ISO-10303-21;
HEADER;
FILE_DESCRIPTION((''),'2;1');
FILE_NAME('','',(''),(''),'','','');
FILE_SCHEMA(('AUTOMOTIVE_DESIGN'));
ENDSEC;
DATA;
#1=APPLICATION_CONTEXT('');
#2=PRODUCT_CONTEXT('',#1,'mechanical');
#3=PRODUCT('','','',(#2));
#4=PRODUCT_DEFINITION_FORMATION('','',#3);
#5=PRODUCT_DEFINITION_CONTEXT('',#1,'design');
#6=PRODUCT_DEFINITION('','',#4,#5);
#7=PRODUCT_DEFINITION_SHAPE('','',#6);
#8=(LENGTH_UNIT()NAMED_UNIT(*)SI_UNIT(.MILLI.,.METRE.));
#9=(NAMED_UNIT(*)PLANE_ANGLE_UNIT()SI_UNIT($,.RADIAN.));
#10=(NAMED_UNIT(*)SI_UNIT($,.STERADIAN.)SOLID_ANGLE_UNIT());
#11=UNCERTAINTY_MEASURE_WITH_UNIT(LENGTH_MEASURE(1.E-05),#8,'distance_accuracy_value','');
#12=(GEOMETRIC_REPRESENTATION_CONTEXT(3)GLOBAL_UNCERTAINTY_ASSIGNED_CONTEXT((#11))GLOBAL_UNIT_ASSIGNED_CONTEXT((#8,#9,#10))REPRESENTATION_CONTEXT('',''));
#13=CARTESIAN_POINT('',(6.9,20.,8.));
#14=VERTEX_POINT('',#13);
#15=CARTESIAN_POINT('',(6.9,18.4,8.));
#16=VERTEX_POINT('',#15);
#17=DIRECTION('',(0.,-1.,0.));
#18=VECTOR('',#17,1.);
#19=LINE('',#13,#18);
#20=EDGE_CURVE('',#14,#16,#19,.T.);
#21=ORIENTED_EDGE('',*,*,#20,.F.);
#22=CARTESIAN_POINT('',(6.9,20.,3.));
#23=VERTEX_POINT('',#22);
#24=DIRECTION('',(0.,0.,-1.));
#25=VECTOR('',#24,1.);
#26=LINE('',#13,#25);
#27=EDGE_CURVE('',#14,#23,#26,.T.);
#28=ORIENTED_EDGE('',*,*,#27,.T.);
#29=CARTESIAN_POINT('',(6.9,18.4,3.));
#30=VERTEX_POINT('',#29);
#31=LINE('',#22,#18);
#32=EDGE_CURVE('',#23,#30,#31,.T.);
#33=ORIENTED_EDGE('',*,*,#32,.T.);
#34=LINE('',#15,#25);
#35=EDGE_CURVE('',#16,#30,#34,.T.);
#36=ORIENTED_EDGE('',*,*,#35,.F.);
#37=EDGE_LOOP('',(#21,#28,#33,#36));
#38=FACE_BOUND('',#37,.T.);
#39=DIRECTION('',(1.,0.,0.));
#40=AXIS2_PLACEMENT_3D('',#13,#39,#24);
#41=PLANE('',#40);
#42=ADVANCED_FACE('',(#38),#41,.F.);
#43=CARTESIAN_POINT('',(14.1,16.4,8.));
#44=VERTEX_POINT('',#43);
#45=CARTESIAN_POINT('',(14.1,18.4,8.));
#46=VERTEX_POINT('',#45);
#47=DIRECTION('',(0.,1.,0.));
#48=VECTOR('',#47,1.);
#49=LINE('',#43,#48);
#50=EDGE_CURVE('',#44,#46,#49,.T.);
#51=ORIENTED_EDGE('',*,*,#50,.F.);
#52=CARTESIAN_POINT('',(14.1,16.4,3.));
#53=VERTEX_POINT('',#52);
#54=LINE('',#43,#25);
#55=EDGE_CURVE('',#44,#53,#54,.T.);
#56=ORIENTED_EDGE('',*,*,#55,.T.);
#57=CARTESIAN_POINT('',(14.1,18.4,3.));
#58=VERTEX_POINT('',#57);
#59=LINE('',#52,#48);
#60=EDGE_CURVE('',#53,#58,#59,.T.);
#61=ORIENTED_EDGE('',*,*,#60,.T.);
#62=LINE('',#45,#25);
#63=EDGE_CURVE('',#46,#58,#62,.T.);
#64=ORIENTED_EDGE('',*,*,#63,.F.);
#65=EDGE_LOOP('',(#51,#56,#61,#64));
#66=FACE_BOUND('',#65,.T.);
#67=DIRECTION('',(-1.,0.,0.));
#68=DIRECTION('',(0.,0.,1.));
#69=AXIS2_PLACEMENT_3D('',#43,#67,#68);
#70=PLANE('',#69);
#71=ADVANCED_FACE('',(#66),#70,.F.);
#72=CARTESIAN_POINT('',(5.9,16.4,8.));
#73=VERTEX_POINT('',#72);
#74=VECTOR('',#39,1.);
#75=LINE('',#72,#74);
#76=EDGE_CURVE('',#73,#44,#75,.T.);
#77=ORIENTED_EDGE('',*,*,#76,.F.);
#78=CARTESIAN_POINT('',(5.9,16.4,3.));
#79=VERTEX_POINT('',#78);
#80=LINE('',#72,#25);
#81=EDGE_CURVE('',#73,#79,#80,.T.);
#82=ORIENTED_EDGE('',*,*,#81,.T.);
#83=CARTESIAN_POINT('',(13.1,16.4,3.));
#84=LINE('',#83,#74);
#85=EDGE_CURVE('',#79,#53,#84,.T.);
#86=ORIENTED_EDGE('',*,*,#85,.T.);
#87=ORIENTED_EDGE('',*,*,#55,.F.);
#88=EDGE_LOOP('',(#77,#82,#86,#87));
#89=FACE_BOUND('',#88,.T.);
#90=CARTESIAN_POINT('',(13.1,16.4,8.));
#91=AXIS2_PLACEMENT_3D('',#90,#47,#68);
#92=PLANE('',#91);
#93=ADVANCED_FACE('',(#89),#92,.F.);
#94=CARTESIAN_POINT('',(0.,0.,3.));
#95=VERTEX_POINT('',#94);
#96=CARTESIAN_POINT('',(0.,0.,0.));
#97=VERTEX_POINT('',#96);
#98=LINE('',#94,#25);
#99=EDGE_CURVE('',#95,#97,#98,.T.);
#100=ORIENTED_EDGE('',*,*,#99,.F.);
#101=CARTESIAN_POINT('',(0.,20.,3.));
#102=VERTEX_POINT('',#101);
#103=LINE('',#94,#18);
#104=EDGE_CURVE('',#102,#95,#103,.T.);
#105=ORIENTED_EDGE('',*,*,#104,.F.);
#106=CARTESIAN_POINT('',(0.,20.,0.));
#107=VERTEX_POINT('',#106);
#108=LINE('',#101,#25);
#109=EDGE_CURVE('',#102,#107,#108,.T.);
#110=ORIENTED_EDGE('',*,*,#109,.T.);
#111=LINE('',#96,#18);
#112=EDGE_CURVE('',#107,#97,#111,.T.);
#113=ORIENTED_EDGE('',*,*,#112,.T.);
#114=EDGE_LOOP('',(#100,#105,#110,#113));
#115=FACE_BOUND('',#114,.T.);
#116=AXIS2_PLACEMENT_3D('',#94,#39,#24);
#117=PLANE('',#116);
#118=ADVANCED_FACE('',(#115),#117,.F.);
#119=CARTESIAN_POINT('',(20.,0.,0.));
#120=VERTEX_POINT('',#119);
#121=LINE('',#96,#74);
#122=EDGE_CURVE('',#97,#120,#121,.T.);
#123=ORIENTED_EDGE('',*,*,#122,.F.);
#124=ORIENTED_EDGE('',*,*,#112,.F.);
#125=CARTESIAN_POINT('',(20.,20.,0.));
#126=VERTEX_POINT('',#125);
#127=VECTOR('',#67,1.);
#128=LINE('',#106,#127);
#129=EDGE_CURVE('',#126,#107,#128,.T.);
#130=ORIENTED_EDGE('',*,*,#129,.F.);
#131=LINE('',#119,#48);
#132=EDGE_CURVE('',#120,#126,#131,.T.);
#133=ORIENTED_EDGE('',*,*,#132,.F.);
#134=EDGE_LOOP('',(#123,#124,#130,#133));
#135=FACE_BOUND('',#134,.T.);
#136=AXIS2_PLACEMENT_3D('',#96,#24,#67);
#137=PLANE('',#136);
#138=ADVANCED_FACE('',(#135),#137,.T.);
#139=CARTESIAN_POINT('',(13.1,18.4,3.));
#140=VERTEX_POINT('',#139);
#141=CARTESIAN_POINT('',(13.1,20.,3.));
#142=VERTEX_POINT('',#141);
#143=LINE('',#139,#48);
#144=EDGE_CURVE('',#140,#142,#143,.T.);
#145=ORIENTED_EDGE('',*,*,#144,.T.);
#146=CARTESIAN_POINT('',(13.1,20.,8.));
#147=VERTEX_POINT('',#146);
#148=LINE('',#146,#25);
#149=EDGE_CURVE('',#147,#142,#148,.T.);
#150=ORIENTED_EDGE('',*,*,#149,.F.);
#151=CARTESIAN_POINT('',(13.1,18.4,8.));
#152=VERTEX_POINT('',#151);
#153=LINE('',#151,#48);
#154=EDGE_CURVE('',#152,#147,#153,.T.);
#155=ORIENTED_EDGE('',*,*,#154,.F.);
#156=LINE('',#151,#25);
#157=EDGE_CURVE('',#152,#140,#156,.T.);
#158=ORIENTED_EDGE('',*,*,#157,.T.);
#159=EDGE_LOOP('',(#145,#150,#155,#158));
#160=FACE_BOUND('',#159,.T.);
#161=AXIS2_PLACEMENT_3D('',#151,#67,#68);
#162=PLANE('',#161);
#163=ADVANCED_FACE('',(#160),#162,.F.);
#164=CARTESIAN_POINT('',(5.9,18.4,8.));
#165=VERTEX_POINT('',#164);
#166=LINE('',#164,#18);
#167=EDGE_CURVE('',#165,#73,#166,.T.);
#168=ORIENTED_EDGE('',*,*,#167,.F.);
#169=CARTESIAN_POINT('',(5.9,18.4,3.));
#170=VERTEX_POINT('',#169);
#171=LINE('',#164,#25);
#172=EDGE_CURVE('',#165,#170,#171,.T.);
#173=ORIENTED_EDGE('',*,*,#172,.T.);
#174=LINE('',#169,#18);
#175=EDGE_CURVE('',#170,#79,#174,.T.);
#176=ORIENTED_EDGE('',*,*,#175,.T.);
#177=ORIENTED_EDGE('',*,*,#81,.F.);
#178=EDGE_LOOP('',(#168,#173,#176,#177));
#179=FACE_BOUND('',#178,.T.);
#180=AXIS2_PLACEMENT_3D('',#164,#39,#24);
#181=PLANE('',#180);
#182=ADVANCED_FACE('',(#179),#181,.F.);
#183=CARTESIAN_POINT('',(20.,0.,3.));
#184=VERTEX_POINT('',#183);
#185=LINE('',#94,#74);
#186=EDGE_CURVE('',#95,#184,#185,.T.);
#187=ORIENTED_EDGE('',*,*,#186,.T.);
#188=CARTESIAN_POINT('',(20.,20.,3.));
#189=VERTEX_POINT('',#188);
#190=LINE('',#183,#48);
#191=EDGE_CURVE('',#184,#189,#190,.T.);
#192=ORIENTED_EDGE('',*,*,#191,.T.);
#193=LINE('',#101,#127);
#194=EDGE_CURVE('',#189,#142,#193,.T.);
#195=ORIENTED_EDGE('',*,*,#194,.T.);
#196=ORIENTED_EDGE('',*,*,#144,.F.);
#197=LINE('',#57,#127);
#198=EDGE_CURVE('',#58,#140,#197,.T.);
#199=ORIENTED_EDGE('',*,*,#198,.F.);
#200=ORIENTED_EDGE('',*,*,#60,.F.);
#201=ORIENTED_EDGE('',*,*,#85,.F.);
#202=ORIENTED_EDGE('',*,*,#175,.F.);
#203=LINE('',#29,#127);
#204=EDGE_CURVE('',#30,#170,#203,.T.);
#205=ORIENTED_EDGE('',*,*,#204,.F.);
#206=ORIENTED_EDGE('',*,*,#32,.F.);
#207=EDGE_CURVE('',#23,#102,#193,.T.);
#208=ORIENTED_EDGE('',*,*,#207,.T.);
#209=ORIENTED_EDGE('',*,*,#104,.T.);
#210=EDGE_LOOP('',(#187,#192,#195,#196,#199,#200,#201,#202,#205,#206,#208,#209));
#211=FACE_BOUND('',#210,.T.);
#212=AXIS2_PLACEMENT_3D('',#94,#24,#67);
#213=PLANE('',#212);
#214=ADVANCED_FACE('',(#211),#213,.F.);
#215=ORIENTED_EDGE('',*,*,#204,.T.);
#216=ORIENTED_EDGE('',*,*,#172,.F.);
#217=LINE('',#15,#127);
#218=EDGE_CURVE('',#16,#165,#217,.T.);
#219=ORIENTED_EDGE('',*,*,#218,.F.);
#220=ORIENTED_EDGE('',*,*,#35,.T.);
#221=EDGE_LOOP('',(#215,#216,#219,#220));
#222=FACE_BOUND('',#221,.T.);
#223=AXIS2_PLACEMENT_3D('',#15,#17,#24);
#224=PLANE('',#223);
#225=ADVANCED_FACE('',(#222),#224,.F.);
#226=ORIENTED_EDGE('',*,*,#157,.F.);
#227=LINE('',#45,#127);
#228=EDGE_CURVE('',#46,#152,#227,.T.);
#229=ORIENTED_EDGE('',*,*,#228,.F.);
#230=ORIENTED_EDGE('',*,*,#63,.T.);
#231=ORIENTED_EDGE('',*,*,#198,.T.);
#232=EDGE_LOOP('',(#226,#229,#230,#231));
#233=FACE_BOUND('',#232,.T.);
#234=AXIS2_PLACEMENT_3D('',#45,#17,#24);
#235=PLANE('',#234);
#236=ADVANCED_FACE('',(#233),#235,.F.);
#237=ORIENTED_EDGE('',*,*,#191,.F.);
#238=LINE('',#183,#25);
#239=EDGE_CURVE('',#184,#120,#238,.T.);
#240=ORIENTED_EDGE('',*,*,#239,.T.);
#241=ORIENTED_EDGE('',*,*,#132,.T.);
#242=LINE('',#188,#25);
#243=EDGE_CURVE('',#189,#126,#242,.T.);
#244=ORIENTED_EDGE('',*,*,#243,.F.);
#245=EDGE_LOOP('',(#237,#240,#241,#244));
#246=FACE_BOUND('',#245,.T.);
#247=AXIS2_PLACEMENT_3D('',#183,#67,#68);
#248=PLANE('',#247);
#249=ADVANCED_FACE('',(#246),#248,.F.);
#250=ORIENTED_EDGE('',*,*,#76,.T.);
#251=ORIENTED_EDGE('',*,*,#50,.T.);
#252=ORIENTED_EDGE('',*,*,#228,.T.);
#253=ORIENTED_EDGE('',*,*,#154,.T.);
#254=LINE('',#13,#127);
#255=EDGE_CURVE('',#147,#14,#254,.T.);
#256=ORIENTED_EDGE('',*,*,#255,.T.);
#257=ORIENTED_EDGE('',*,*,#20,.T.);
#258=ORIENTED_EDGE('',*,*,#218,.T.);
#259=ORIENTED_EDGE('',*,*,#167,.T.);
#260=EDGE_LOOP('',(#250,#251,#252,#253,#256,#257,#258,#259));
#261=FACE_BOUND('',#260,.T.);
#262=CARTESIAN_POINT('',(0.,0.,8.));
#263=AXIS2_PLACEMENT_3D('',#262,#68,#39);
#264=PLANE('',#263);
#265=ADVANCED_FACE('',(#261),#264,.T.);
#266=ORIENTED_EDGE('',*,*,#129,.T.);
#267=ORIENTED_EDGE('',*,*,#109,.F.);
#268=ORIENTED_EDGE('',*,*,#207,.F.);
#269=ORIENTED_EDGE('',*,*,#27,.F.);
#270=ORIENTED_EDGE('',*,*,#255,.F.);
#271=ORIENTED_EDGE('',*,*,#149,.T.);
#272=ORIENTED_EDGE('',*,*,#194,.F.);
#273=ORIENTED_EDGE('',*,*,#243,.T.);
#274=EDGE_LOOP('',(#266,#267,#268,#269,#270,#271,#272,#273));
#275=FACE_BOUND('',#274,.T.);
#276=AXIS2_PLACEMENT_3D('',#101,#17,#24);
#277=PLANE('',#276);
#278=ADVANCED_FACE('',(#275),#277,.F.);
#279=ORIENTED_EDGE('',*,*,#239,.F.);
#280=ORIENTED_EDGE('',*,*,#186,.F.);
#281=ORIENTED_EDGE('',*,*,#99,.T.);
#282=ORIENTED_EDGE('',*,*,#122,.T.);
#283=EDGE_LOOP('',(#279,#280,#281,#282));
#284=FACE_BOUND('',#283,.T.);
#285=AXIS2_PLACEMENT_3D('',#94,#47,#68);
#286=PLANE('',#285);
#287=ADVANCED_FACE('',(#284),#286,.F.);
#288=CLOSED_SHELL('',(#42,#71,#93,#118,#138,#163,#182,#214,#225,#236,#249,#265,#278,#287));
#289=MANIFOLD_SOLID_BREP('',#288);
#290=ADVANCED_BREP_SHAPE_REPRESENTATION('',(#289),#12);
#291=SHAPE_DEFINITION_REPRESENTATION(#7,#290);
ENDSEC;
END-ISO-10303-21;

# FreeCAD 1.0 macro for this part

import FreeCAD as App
import Part
import Sketcher
from FreeCAD import Vector
Q = App.Units.Quantity


def add_polygon(sketch, points):
    """Adds a closed chain of lines whose ends are joined by coincident constraints."""
    first, n = sketch.GeometryCount, len(points)
    for a, b in zip(points, points[1:] + points[:1]):
        sketch.addGeometry(Part.LineSegment(App.Vector(*a, 0), App.Vector(*b, 0)), False)
    for i in range(n):
        sketch.addConstraint(Sketcher.Constraint("Coincident", first + i, 2, first + (i + 1) % n, 1))

doc = App.newDocument("Part")
params = doc.addObject("Spreadsheet::Sheet", "Params")
for row, (alias, value) in enumerate([
    ("sketch1_width", "20 mm"),
    ("pad1_length", "3 mm"),
    ("sketch2_width", "1 mm"),
    ("sketch2_height", "2 mm"),
    ("sketch2_width2", "8.2 mm"),
    ("sketch2_height2", "1.6 mm"),
    ("pad2_length", "5 mm"),
], start=1):
    params.set(f"A{row}", alias)
    params.set(f"B{row}", "=" + value)
    params.setAlias(f"B{row}", alias)

body = doc.addObject("PartDesign::Body", "Body")

# Sketch on XY plane
sketch1 = body.newObject("Sketcher::SketchObject", "Sketch")
sketch1.AttachmentSupport = (doc.getObject("XY_Plane"), [""])
sketch1.MapMode = "FlatFace"
add_polygon(sketch1, [(0, 20), (0, 0), (20, 0), (20, 20)])  # lines 0-3
sketch1.addConstraint([
    Sketcher.Constraint("Vertical", 0),
    Sketcher.Constraint("Horizontal", 1),
    Sketcher.Constraint("Vertical", 2),
    Sketcher.Constraint("Horizontal", 3),
    Sketcher.Constraint("Coincident", 0, 2, -1, 1),
    Sketcher.Constraint("Equal", 3, 0),
    Sketcher.Constraint("DistanceX", 1, 1, 1, 2, Q("20 mm")),
])
sketch1.setExpression("Constraints[10]", "Params.sketch1_width")
pad1 = body.newObject("PartDesign::Pad", "Pad")
pad1.Profile = sketch1
pad1.setExpression("Length", "Params.pad1_length")

# Sketch on XY plane
sketch2 = body.newObject("Sketcher::SketchObject", "Sketch001")
sketch2.AttachmentSupport = (doc.getObject("XY_Plane"), [""])
sketch2.MapMode = "FlatFace"
sketch2.AttachmentOffset = App.Placement(Vector(0, 0, 3), App.Rotation())
add_polygon(sketch2, [(6.9, 20), (6.9, 18.4), (5.9, 18.4), (5.9, 16.4), (14.1, 16.4), (14.1, 18.4), (13.1, 18.4), (13.1, 20)])  # lines 0-7
sketch2.addConstraint([
    Sketcher.Constraint("Vertical", 0),
    Sketcher.Constraint("Horizontal", 1),
    Sketcher.Constraint("Vertical", 2),
    Sketcher.Constraint("Horizontal", 3),
    Sketcher.Constraint("Vertical", 4),
    Sketcher.Constraint("Horizontal", 5),
    Sketcher.Constraint("Vertical", 6),
    Sketcher.Constraint("Horizontal", 7),
    Sketcher.Constraint("Horizontal", 1, 2, 4, 2),
    Sketcher.Constraint("Equal", 1, 5),
    Sketcher.Constraint("DistanceX", 1, 2, 1, 1, Q("1 mm")),
    Sketcher.Constraint("DistanceY", 2, 2, 2, 1, Q("2 mm")),
    Sketcher.Constraint("DistanceX", 3, 1, 3, 2, Q("8.2 mm")),
    Sketcher.Constraint("DistanceY", 0, 2, 0, 1, Q("1.6 mm")),
    Sketcher.Constraint("DistanceY", -1, 1, 6, 2, Q("20 mm")),
    Sketcher.Constraint("DistanceX", -1, 1, 0, 2, Q("6.9 mm")),
])
sketch2.setExpression("Constraints[18]", "Params.sketch2_width")
sketch2.setExpression("Constraints[19]", "Params.sketch2_height")
sketch2.setExpression("Constraints[20]", "Params.sketch2_width2")
sketch2.setExpression("Constraints[21]", "Params.sketch2_height2")
pad2 = body.newObject("PartDesign::Pad", "Pad001")
pad2.Profile = sketch2
pad2.setExpression("Length", "Params.pad2_length")

doc.recompute()
